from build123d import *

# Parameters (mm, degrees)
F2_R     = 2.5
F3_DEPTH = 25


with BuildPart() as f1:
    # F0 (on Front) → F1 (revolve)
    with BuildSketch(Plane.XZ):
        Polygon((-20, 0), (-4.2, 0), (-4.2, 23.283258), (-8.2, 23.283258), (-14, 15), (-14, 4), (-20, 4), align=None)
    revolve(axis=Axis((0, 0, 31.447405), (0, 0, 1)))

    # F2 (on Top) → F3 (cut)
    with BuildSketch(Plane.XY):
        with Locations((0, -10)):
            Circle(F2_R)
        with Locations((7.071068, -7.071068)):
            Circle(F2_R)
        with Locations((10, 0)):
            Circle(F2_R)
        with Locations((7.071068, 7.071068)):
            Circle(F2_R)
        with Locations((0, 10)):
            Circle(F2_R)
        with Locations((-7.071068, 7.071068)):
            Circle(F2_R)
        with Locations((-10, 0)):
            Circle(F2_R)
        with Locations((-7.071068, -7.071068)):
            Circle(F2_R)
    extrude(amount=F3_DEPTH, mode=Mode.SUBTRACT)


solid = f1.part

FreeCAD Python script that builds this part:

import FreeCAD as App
import Part
import Sketcher
from FreeCAD import Vector
Q = App.Units.Quantity

doc = App.newDocument("Part")
body = doc.addObject("PartDesign::Body", "Body")

sketch1 = body.newObject("Sketcher::SketchObject", "Sketch")
sketch1.AttachmentSupport = (doc.getObject("XZ_Plane"), [""])
sketch1.MapMode = "FlatFace"
sketch1.addGeometry(Part.LineSegment(Vector(-20, 0, 0), Vector(-4.2, 0, 0)), False)
sketch1.addGeometry(Part.LineSegment(Vector(-4.2, 0, 0), Vector(-4.2, 23.283258, 0)), False)
sketch1.addGeometry(Part.LineSegment(Vector(-4.2, 23.283258, 0), Vector(-8.2, 23.283258, 0)), False)
sketch1.addGeometry(Part.LineSegment(Vector(-8.2, 23.283258, 0), Vector(-14, 15, 0)), False)
sketch1.addGeometry(Part.LineSegment(Vector(-14, 15, 0), Vector(-14, 4, 0)), False)
sketch1.addGeometry(Part.LineSegment(Vector(-14, 4, 0), Vector(-20, 4, 0)), False)
sketch1.addGeometry(Part.LineSegment(Vector(-20, 4, 0), Vector(-20, 0, 0)), False)
sketch1.addConstraint(Sketcher.Constraint("Coincident", 0, 2, 1, 1))
sketch1.addConstraint(Sketcher.Constraint("Coincident", 1, 2, 2, 1))
sketch1.addConstraint(Sketcher.Constraint("Coincident", 2, 2, 3, 1))
sketch1.addConstraint(Sketcher.Constraint("Coincident", 3, 2, 4, 1))
sketch1.addConstraint(Sketcher.Constraint("Coincident", 4, 2, 5, 1))
sketch1.addConstraint(Sketcher.Constraint("Coincident", 5, 2, 6, 1))
sketch1.addConstraint(Sketcher.Constraint("Coincident", 6, 2, 0, 1))
sketch1.addConstraint(Sketcher.Constraint("Horizontal", 0))
sketch1.addConstraint(Sketcher.Constraint("Vertical", 1))
sketch1.addConstraint(Sketcher.Constraint("Horizontal", 2))
sketch1.addConstraint(Sketcher.Constraint("Vertical", 4))
sketch1.addConstraint(Sketcher.Constraint("Horizontal", 5))
sketch1.addConstraint(Sketcher.Constraint("Vertical", 6))
sketch1.addConstraint(Sketcher.Constraint("PointOnObject", 0, 2, -1))
sketch1.addConstraint(Sketcher.Constraint("Equal", 2, 6))
sketch1.addConstraint(Sketcher.Constraint("DistanceX", 2, 2, 2, 1, Q("4 mm")))
sketch1.addConstraint(Sketcher.Constraint("DistanceX", 5, 2, 5, 1, Q("6 mm")))
sketch1.addConstraint(Sketcher.Constraint("DistanceY", 4, 2, 4, 1, Q("11 mm")))
sketch1.addConstraint(Sketcher.Constraint("Angle", 3, Q("-125.000001 deg")))
sketch1.addConstraint(Sketcher.Constraint("DistanceX", 0, 1, 0, 2, Q("15.8 mm")))
sketch1.addConstraint(Sketcher.Constraint("DistanceX", 3, 2, -1, 1, Q("14 mm")))
revolution = body.newObject("PartDesign::Revolution", "Revolution")
revolution.Profile = sketch1
revolution.ReferenceAxis = (sketch1, ["V_Axis"])
revolution.Angle = 360

sketch2 = body.newObject("Sketcher::SketchObject", "Sketch001")
sketch2.AttachmentSupport = (doc.getObject("XY_Plane"), [""])
sketch2.MapMode = "FlatFace"
sketch2.addGeometry(Part.Circle(Vector(0, -10, 0), Vector(0, 0, 1), 2.5), False)
sketch2.addGeometry(Part.Circle(Vector(7.071068, -7.071068, 0), Vector(0, 0, 1), 2.5), False)
sketch2.addGeometry(Part.Circle(Vector(10, 0, 0), Vector(0, 0, 1), 2.5), False)
sketch2.addGeometry(Part.Circle(Vector(7.071068, 7.071068, 0), Vector(0, 0, 1), 2.5), False)
sketch2.addGeometry(Part.Circle(Vector(0, 10, 0), Vector(0, 0, 1), 2.5), False)
sketch2.addGeometry(Part.Circle(Vector(-7.071068, 7.071068, 0), Vector(0, 0, 1), 2.5), False)
sketch2.addGeometry(Part.Circle(Vector(-10, 0, 0), Vector(0, 0, 1), 2.5), False)
sketch2.addGeometry(Part.Circle(Vector(-7.071068, -7.071068, 0), Vector(0, 0, 1), 2.5), False)
sketch2.addConstraint(Sketcher.Constraint("Equal", 0, 1))
sketch2.addConstraint(Sketcher.Constraint("Equal", 1, 2))
sketch2.addConstraint(Sketcher.Constraint("Equal", 2, 3))
sketch2.addConstraint(Sketcher.Constraint("Equal", 3, 4))
sketch2.addConstraint(Sketcher.Constraint("Equal", 4, 5))
sketch2.addConstraint(Sketcher.Constraint("Equal", 5, 6))
sketch2.addConstraint(Sketcher.Constraint("Equal", 6, 7))
sketch2.addConstraint(Sketcher.Constraint("Symmetric", 0, 3, 4, 3, -1, 1))
sketch2.addConstraint(Sketcher.Constraint("Symmetric", 1, 3, 5, 3, -1, 1))
sketch2.addConstraint(Sketcher.Constraint("Symmetric", 2, 3, 6, 3, -1, 1))
sketch2.addConstraint(Sketcher.Constraint("Symmetric", 3, 3, 7, 3, -1, 1))
sketch2.addConstraint(Sketcher.Constraint("Symmetric", 3, 3, 5, 3, -2))
sketch2.addConstraint(Sketcher.Constraint("PointOnObject", 0, 3, -2))
sketch2.addConstraint(Sketcher.Constraint("PointOnObject", 2, 3, -1))
sketch2.addConstraint(Sketcher.Constraint("Diameter", 0, Q("5 mm")))
sketch2.addConstraint(Sketcher.Constraint("DistanceY", 0, 3, -1, 1, Q("10 mm")))
sketch2.addConstraint(Sketcher.Constraint("DistanceX", -1, 1, 2, 3, Q("10 mm")))
sketch2.addConstraint(Sketcher.Constraint("DistanceX", -1, 1, 1, 3, Q("7.071068 mm")))
sketch2.addConstraint(Sketcher.Constraint("DistanceY", 1, 3, -1, 1, Q("7.071068 mm")))
pocket1 = body.newObject("PartDesign::Pocket", "Pocket")
pocket1.Profile = sketch2
pocket1.Length = 25
pocket1.Reversed = True

doc.recompute()
